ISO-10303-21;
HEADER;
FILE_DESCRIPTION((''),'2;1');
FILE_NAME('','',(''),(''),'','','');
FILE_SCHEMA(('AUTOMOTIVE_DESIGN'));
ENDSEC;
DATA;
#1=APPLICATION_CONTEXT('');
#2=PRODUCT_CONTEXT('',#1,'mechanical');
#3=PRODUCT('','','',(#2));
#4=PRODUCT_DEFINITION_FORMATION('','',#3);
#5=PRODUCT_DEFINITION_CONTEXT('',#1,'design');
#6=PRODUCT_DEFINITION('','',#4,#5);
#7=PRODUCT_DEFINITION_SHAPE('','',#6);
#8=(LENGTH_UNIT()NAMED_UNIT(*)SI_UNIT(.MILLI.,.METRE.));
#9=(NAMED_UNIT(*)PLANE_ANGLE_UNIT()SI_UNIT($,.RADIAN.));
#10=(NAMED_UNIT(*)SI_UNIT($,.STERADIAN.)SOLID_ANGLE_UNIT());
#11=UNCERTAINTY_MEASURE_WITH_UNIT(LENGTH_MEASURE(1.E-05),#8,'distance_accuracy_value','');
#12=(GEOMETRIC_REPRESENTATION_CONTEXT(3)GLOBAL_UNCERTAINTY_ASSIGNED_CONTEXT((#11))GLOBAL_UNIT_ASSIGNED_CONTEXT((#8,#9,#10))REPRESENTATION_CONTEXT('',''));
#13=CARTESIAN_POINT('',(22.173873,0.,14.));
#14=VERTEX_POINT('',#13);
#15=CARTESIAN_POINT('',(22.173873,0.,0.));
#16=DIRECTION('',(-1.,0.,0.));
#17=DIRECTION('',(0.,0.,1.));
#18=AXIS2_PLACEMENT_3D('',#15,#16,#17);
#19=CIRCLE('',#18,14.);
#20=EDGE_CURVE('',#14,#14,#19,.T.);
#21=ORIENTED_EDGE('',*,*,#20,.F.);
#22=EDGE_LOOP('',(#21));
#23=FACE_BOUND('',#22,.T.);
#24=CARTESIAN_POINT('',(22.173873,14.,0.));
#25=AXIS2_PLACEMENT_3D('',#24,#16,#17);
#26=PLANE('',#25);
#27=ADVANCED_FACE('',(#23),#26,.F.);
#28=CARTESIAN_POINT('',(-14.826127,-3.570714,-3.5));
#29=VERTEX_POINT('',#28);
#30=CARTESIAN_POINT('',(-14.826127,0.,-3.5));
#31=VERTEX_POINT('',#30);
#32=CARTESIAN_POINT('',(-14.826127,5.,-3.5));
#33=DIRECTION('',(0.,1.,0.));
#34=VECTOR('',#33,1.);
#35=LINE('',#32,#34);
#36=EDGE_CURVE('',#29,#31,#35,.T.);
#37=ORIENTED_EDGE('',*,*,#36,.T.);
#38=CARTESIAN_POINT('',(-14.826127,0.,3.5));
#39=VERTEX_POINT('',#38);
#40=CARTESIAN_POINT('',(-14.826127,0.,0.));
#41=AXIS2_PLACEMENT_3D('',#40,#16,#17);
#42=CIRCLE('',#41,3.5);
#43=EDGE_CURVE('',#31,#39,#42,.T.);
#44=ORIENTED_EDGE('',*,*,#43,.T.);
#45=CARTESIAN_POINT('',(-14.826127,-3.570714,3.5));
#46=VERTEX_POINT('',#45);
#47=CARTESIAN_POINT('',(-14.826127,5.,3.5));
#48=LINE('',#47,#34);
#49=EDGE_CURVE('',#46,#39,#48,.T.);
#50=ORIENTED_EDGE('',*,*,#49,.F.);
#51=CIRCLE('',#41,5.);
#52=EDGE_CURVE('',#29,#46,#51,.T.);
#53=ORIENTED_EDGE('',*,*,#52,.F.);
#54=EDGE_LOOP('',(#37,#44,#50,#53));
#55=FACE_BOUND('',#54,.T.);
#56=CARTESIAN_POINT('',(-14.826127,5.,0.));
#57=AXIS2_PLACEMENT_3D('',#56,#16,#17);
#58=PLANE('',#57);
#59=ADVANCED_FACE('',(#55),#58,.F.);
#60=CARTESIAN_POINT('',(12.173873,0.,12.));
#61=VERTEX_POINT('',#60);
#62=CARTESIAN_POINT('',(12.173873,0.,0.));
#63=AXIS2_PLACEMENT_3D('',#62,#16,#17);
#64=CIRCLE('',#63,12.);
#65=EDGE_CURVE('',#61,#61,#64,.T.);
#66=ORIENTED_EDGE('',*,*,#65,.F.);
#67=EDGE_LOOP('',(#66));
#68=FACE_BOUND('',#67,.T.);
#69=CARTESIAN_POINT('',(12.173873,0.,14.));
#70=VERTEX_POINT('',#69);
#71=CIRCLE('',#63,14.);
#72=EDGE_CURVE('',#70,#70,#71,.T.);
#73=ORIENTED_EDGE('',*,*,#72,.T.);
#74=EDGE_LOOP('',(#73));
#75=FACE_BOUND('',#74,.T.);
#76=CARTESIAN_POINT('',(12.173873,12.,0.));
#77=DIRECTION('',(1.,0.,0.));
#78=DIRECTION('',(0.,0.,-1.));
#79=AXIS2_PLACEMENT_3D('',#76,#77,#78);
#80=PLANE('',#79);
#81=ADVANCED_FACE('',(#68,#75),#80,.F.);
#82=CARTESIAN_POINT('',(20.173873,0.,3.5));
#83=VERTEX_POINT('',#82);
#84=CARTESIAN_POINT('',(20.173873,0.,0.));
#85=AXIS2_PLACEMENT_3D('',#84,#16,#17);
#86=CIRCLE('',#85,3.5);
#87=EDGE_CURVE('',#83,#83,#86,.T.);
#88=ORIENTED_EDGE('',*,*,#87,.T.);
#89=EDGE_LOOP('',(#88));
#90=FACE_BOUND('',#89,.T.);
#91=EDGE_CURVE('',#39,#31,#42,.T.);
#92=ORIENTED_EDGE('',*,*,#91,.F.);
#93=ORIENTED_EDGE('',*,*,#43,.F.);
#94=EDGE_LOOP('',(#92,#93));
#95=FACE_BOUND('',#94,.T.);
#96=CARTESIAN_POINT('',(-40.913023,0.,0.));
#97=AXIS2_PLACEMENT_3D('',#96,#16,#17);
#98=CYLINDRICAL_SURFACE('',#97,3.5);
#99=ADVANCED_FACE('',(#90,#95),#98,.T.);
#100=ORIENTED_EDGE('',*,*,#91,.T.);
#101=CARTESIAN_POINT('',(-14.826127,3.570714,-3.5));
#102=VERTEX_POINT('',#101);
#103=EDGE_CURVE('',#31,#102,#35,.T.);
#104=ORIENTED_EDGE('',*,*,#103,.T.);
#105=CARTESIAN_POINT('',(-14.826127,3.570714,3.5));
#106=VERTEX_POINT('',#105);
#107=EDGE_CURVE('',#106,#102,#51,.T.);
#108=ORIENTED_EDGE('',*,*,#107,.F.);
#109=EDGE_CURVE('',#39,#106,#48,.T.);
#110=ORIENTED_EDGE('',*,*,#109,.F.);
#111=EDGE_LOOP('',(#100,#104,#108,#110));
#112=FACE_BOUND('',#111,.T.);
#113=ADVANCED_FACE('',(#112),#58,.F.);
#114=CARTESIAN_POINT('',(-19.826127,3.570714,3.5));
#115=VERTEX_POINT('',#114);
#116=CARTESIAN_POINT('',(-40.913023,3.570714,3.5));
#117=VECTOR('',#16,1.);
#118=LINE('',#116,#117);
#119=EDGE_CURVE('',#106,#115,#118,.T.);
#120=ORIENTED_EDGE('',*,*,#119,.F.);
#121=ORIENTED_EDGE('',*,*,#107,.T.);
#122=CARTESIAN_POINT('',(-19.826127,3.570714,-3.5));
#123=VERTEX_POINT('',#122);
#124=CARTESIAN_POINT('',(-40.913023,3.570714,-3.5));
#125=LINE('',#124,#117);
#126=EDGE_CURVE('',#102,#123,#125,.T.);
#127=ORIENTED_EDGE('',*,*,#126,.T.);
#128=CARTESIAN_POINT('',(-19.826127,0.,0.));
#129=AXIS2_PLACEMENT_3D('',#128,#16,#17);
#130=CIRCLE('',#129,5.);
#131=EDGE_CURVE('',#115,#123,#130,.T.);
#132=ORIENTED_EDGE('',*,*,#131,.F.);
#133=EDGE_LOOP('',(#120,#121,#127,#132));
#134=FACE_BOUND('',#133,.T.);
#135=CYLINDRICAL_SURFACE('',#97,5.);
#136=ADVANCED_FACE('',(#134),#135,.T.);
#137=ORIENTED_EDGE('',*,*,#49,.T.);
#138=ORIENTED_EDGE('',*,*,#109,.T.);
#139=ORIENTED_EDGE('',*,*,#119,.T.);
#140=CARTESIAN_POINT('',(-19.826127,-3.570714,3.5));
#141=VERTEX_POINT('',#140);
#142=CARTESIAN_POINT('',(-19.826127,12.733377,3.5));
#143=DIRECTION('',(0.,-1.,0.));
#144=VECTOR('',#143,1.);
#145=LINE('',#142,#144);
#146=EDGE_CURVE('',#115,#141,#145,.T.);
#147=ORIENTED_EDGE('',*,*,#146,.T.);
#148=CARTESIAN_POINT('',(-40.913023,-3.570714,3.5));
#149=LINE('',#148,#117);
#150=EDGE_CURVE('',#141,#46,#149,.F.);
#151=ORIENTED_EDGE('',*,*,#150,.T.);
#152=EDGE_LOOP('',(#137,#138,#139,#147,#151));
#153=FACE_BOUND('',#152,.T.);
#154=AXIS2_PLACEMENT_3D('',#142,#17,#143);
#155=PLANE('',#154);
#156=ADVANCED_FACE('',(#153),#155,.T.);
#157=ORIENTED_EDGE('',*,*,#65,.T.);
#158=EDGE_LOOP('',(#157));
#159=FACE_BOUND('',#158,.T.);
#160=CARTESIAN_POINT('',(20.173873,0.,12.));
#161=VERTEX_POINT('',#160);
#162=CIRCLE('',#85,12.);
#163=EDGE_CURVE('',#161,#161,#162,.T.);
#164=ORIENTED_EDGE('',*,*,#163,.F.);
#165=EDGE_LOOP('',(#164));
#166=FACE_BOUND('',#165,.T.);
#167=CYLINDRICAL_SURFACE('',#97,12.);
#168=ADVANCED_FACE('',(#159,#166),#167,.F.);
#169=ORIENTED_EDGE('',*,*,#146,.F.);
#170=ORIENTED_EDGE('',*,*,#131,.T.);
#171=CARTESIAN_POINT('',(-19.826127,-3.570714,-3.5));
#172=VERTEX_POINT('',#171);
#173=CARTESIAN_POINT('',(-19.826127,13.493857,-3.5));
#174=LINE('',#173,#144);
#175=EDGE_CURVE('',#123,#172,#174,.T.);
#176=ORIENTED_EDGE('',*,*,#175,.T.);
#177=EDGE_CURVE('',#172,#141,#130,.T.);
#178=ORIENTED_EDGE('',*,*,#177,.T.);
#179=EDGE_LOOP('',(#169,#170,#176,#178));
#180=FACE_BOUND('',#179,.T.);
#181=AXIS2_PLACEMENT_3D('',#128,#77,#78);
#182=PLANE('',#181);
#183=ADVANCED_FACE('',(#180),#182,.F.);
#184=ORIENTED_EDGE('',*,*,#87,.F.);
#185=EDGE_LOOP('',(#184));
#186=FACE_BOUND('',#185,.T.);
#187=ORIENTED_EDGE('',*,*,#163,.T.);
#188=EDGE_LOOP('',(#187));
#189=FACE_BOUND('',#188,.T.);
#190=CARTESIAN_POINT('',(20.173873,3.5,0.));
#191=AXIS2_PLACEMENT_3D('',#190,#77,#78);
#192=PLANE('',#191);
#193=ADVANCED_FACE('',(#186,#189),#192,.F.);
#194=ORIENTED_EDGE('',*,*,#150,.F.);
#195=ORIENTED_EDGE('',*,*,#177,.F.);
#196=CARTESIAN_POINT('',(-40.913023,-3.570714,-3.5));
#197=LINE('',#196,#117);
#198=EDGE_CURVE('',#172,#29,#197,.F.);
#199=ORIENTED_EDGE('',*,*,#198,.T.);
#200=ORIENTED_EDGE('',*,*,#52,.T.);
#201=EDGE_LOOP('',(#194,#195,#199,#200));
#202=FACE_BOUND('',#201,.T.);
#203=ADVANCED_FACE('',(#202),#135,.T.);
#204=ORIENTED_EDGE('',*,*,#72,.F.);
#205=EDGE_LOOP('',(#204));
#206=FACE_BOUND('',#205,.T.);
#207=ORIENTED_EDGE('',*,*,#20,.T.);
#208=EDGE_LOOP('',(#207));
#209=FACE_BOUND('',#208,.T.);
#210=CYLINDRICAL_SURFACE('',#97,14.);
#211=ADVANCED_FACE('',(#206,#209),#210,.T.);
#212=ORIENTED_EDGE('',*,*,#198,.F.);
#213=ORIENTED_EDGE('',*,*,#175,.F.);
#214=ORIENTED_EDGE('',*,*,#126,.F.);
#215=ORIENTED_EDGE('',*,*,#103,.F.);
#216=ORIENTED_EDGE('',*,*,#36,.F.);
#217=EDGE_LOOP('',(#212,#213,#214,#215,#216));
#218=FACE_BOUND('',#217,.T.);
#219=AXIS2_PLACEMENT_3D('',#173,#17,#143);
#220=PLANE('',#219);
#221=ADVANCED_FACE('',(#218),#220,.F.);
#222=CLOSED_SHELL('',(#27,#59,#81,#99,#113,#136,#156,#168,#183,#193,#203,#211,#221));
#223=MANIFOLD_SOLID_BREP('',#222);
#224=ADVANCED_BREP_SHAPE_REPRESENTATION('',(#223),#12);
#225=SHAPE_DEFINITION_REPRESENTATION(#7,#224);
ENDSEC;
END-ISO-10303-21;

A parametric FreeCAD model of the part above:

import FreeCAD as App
import Part
import Sketcher

V = App.Vector
Q = App.Units.Quantity

doc = App.newDocument("Part")
body = doc.addObject("PartDesign::Body", "Body")

# Sketch on XY plane
sketch1 = doc.addObject("Sketcher::SketchObject", "Sketch")
body.addObject(sketch1)
sketch1.AttachmentSupport = (doc.XY_Plane, [""])
sketch1.MapMode = "FlatFace"
sketch1.addGeometry(Part.LineSegment(V(-19.8, 0, 0), V(22.2, 0, 0)), False)
sketch1.addGeometry(Part.LineSegment(V(22.2, 0, 0), V(22.2, 14, 0)), False)
sketch1.addGeometry(Part.LineSegment(V(22.2, 14, 0), V(12.2, 14, 0)), False)
sketch1.addGeometry(Part.LineSegment(V(12.2, 14, 0), V(12.2, 12, 0)), False)
sketch1.addGeometry(Part.LineSegment(V(12.2, 12, 0), V(20.2, 12, 0)), False)
sketch1.addGeometry(Part.LineSegment(V(20.2, 12, 0), V(20.2, 3.5, 0)), False)
sketch1.addGeometry(Part.LineSegment(V(20.2, 3.5, 0), V(-14.8, 3.5, 0)), False)
sketch1.addGeometry(Part.LineSegment(V(-14.8, 3.5, 0), V(-14.8, 5, 0)), False)
sketch1.addGeometry(Part.LineSegment(V(-14.8, 5, 0), V(-19.8, 5, 0)), False)
sketch1.addGeometry(Part.LineSegment(V(-19.8, 5, 0), V(-19.8, 0, 0)), False)
sketch1.addConstraint(Sketcher.Constraint("Coincident", 0, 2, 1, 1))
sketch1.addConstraint(Sketcher.Constraint("Coincident", 1, 2, 2, 1))
sketch1.addConstraint(Sketcher.Constraint("Coincident", 2, 2, 3, 1))
sketch1.addConstraint(Sketcher.Constraint("Coincident", 3, 2, 4, 1))
sketch1.addConstraint(Sketcher.Constraint("Coincident", 4, 2, 5, 1))
sketch1.addConstraint(Sketcher.Constraint("Coincident", 5, 2, 6, 1))
sketch1.addConstraint(Sketcher.Constraint("Coincident", 6, 2, 7, 1))
sketch1.addConstraint(Sketcher.Constraint("Coincident", 7, 2, 8, 1))
sketch1.addConstraint(Sketcher.Constraint("Coincident", 8, 2, 9, 1))
sketch1.addConstraint(Sketcher.Constraint("Coincident", 9, 2, 0, 1))
sketch1.addConstraint(Sketcher.Constraint("Horizontal", 0))
sketch1.addConstraint(Sketcher.Constraint("Vertical", 1))
sketch1.addConstraint(Sketcher.Constraint("Horizontal", 2))
sketch1.addConstraint(Sketcher.Constraint("Vertical", 3))
sketch1.addConstraint(Sketcher.Constraint("Horizontal", 4))
sketch1.addConstraint(Sketcher.Constraint("Vertical", 5))
sketch1.addConstraint(Sketcher.Constraint("Horizontal", 6))
sketch1.addConstraint(Sketcher.Constraint("Vertical", 7))
sketch1.addConstraint(Sketcher.Constraint("Horizontal", 8))
sketch1.addConstraint(Sketcher.Constraint("Vertical", 9))
sketch1.addConstraint(Sketcher.Constraint("PointOnObject", 0, 2, -1))
sketch1.addConstraint(Sketcher.Constraint("Equal", 8, 9))
sketch1.addConstraint(Sketcher.Constraint("DistanceX", 0, 1, 0, 2, Q("42 mm")))
sketch1.addConstraint(Sketcher.Constraint("DistanceX", 2, 2, 2, 1, Q("10 mm")))
sketch1.addConstraint(Sketcher.Constraint("DistanceX", 4, 1, 4, 2, Q("8 mm")))
sketch1.addConstraint(Sketcher.Constraint("DistanceX", 6, 2, 6, 1, Q("35 mm")))
sketch1.addConstraint(Sketcher.Constraint("DistanceY", 1, 1, 1, 2, Q("14 mm")))
sketch1.addConstraint(Sketcher.Constraint("DistanceY", 3, 2, 3, 1, Q("2 mm")))
sketch1.addConstraint(Sketcher.Constraint("DistanceY", 5, 2, 5, 1, Q("8.5 mm")))
sketch1.addConstraint(Sketcher.Constraint("DistanceX", -1, 1, 0, 2, Q("22.173873 mm")))
revolution = doc.addObject("PartDesign::Revolution", "Revolution")
body.addObject(revolution)
revolution.Profile = sketch1
revolution.ReferenceAxis = (sketch1, ["H_Axis"])
revolution.Angle = 360

# Sketch on YZ plane
sketch2 = doc.addObject("Sketcher::SketchObject", "Sketch001")
body.addObject(sketch2)
sketch2.AttachmentSupport = (doc.YZ_Plane, [""])
sketch2.MapMode = "FlatFace"
sketch2.AttachmentOffset = App.Placement(V(0, 0, 12.173873), App.Rotation())
sketch2.addGeometry(Part.LineSegment(V(13, 4, 0), V(-15, 4, 0)), False)
sketch2.addGeometry(Part.LineSegment(V(-15, 4, 0), V(-15, 18, 0)), False)
sketch2.addGeometry(Part.LineSegment(V(-15, 18, 0), V(13, 18, 0)), False)
sketch2.addGeometry(Part.LineSegment(V(13, 18, 0), V(13, 4, 0)), False)
sketch2.addConstraint(Sketcher.Constraint("Coincident", 0, 2, 1, 1))
sketch2.addConstraint(Sketcher.Constraint("Coincident", 1, 2, 2, 1))
sketch2.addConstraint(Sketcher.Constraint("Coincident", 2, 2, 3, 1))
sketch2.addConstraint(Sketcher.Constraint("Coincident", 3, 2, 0, 1))
sketch2.addConstraint(Sketcher.Constraint("Horizontal", 0))
sketch2.addConstraint(Sketcher.Constraint("Vertical", 1))
sketch2.addConstraint(Sketcher.Constraint("Horizontal", 2))
sketch2.addConstraint(Sketcher.Constraint("Vertical", 3))
sketch2.addConstraint(Sketcher.Constraint("DistanceY", -1, 1, 0, 2, Q("3.5 mm")))
sketch2.addConstraint(Sketcher.Constraint("DistanceX", 0, 2, 0, 1, Q("27.429724 mm")))
sketch2.addConstraint(Sketcher.Constraint("DistanceY", 1, 1, 1, 2, Q("14.843895 mm")))
sketch2.addConstraint(Sketcher.Constraint("DistanceX", 0, 2, -1, 1, Q("14.696347 mm")))
pocket1 = doc.addObject("PartDesign::Pocket", "Pocket")
body.addObject(pocket1)
pocket1.Profile = sketch2
pocket1.Type = "ThroughAll"

# Sketch on YZ plane
sketch3 = doc.addObject("Sketcher::SketchObject", "Sketch002")
body.addObject(sketch3)
sketch3.AttachmentSupport = (doc.YZ_Plane, [""])
sketch3.MapMode = "FlatFace"
sketch3.AttachmentOffset = App.Placement(V(0, 0, 12.173873), App.Rotation())
sketch3.addGeometry(Part.LineSegment(V(13, -17, 0), V(-14, -17, 0)), False)
sketch3.addGeometry(Part.LineSegment(V(-14, -17, 0), V(-14, -3, 0)), False)
sketch3.addGeometry(Part.LineSegment(V(-14, -3, 0), V(13, -3, 0)), False)
sketch3.addGeometry(Part.LineSegment(V(13, -3, 0), V(13, -17, 0)), False)
sketch3.addConstraint(Sketcher.Constraint("Coincident", 0, 2, 1, 1))
sketch3.addConstraint(Sketcher.Constraint("Coincident", 1, 2, 2, 1))
sketch3.addConstraint(Sketcher.Constraint("Coincident", 2, 2, 3, 1))
sketch3.addConstraint(Sketcher.Constraint("Coincident", 3, 2, 0, 1))
sketch3.addConstraint(Sketcher.Constraint("Horizontal", 0))
sketch3.addConstraint(Sketcher.Constraint("Vertical", 1))
sketch3.addConstraint(Sketcher.Constraint("Horizontal", 2))
sketch3.addConstraint(Sketcher.Constraint("Vertical", 3))
sketch3.addConstraint(Sketcher.Constraint("DistanceY", 1, 2, -1, 1, Q("3.5 mm")))
sketch3.addConstraint(Sketcher.Constraint("DistanceY", 1, 1, 1, 2, Q("13.403161 mm")))
sketch3.addConstraint(Sketcher.Constraint("DistanceX", 0, 2, 0, 1, Q("27.852747 mm")))
sketch3.addConstraint(Sketcher.Constraint("DistanceX", 0, 2, -1, 1, Q("14.358891 mm")))
pocket2 = doc.addObject("PartDesign::Pocket", "Pocket001")
body.addObject(pocket2)
pocket2.Profile = sketch3
pocket2.Type = "ThroughAll"

doc.recompute()
